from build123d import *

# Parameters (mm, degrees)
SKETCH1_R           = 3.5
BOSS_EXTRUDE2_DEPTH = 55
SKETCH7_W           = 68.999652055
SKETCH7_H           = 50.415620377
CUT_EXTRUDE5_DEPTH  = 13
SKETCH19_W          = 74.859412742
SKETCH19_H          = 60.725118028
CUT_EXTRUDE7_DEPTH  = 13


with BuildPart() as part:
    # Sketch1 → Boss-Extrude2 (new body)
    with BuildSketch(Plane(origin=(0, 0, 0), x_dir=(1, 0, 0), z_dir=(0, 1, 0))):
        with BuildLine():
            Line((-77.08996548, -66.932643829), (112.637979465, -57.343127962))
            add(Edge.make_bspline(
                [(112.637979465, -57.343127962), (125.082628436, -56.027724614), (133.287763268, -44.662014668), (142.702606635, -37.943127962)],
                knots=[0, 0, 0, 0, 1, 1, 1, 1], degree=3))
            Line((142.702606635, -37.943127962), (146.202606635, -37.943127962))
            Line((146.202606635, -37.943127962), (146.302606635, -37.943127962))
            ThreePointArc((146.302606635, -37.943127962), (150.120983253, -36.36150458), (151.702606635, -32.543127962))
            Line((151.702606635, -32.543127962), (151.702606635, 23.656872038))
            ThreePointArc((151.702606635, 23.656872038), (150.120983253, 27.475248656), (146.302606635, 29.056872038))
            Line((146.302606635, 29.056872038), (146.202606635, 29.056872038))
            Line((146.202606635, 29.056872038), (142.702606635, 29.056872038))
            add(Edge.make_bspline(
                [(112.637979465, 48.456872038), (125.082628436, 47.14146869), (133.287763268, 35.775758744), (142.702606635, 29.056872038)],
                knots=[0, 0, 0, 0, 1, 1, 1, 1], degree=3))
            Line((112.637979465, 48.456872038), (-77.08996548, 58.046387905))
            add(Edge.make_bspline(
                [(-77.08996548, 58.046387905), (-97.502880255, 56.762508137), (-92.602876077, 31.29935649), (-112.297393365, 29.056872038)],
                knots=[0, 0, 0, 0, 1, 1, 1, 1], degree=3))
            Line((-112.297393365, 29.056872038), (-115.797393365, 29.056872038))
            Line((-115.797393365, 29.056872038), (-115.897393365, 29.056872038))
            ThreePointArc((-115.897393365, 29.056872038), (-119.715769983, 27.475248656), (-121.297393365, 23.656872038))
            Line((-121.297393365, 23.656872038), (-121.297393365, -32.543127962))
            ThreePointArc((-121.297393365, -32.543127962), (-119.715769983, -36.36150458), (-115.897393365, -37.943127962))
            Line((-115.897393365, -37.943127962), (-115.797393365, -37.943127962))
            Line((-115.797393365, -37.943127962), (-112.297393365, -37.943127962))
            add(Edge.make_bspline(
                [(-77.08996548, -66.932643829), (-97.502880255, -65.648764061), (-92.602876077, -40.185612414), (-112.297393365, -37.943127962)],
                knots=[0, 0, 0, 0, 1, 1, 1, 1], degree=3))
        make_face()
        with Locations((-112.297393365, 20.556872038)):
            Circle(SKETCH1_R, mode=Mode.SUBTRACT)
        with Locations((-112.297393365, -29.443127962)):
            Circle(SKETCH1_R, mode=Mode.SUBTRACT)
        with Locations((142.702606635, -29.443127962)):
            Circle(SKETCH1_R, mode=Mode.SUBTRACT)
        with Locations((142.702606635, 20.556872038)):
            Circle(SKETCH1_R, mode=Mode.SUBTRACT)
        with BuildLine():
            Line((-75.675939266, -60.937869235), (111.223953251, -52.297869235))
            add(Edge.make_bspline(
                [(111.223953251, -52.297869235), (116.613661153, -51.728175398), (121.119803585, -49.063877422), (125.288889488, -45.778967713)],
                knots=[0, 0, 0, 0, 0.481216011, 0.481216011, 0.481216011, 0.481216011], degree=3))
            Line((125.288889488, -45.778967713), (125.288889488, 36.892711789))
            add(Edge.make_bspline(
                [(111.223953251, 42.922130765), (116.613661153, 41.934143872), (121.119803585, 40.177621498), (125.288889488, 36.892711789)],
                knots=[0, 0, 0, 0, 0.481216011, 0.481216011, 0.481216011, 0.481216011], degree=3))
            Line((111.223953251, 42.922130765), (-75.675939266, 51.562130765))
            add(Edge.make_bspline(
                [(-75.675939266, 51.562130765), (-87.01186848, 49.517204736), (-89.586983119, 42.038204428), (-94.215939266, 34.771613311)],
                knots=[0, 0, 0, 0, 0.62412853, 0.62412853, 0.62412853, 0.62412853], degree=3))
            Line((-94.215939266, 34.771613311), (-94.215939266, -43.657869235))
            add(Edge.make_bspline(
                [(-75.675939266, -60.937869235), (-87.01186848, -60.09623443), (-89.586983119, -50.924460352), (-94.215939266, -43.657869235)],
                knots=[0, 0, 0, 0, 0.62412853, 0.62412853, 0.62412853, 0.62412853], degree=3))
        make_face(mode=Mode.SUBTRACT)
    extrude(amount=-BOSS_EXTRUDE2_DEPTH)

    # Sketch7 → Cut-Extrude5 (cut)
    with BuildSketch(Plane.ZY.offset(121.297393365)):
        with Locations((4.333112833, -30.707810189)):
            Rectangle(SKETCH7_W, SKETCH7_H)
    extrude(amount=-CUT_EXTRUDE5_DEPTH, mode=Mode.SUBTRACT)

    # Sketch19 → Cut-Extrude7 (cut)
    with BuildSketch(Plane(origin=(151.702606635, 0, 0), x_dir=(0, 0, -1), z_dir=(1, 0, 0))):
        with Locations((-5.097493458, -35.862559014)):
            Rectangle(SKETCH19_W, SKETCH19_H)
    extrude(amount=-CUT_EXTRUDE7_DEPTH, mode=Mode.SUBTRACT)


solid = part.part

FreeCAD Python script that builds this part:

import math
import FreeCAD as App
import Part
import Sketcher

V = App.Vector


def add_polygon(sketch, points):
    """Adds a closed chain of lines whose ends are joined by coincident constraints."""
    first, n = sketch.GeometryCount, len(points)
    for a, b in zip(points, points[1:] + points[:1]):
        sketch.addGeometry(Part.LineSegment(App.Vector(*a, 0), App.Vector(*b, 0)), False)
    for i in range(n):
        sketch.addConstraint(Sketcher.Constraint("Coincident", first + i, 2, first + (i + 1) % n, 1))

doc = App.newDocument("Part")
body = doc.addObject("PartDesign::Body", "Body")

# Sketch on XZ plane
sketch1 = doc.addObject("Sketcher::SketchObject", "Sketch")
body.addObject(sketch1)
sketch1.AttachmentSupport = (doc.XZ_Plane, [""])
sketch1.MapMode = "FlatFace"
sketch1.addGeometry([
    Part.LineSegment(V(-77.089965, 66.932644, 0), V(112.637979, 57.343128, 0)),  # 0
    Part.BSplineCurve([V(112.637979, 57.343128, 0), V(125.082628, 56.027725, 0), V(133.287763, 44.662015, 0), V(142.702607, 37.943128, 0)], [4, 4], [0, 1], False, 3, [1, 1, 1, 1], False),  # 1
    Part.LineSegment(V(142.702607, 37.943128, 0), V(146.302607, 37.943128, 0)),  # 2
    Part.ArcOfCircle(Part.Circle(V(146.302607, 32.543128, 0), V(0, 0, 1), 5.4), math.radians(0), math.radians(90)),  # 3
    Part.LineSegment(V(151.702607, 32.543128, 0), V(151.702607, -23.656872, 0)),  # 4
    Part.ArcOfCircle(Part.Circle(V(146.302607, -23.656872, 0), V(0, 0, 1), 5.4), math.radians(-90), math.radians(0)),  # 5
    Part.LineSegment(V(146.302607, -29.056872, 0), V(142.702607, -29.056872, 0)),  # 6
    Part.BSplineCurve([V(112.637979, -48.456872, 0), V(125.082628, -47.141469, 0), V(133.287763, -35.775759, 0), V(142.702607, -29.056872, 0)], [4, 4], [0, 1], False, 3, [1, 1, 1, 1], False),  # 7
    Part.LineSegment(V(112.637979, -48.456872, 0), V(-77.089965, -58.046388, 0)),  # 8
    Part.BSplineCurve([V(-77.089965, -58.046388, 0), V(-97.50288, -56.762508, 0), V(-92.602876, -31.299356, 0), V(-112.297393, -29.056872, 0)], [4, 4], [0, 1], False, 3, [1, 1, 1, 1], False),  # 9
    Part.LineSegment(V(-112.297393, -29.056872, 0), V(-115.897393, -29.056872, 0)),  # 10
    Part.ArcOfCircle(Part.Circle(V(-115.897393, -23.656872, 0), V(0, 0, 1), 5.4), math.radians(-180), math.radians(-90)),  # 11
    Part.LineSegment(V(-121.297393, -23.656872, 0), V(-121.297393, 32.543128, 0)),  # 12
    Part.ArcOfCircle(Part.Circle(V(-115.897393, 32.543128, 0), V(0, 0, 1), 5.4), math.radians(90), math.radians(180)),  # 13
    Part.LineSegment(V(-115.897393, 37.943128, 0), V(-112.297393, 37.943128, 0)),  # 14
    Part.BSplineCurve([V(-77.089965, 66.932644, 0), V(-97.50288, 65.648764, 0), V(-92.602876, 40.185612, 0), V(-112.297393, 37.943128, 0)], [4, 4], [0, 1], False, 3, [1, 1, 1, 1], False),  # 15
    Part.Circle(V(-112.297393, 29.443128, 0), V(0, 0, 1), 3.5),  # 16
    Part.Circle(V(142.702607, 29.443128, 0), V(0, 0, 1), 3.5),  # 17
    Part.Circle(V(-112.297393, -20.556872, 0), V(0, 0, 1), 3.5),  # 18
    Part.LineSegment(V(111.223953, 52.297869, 0), V(-75.675939, 60.937869, 0)),  # 19
    Part.BSplineCurve([V(-75.675939, 60.937869, 0), V(-87.011868, 60.096234, 0), V(-89.586983, 50.92446, 0), V(-94.215939, 43.657869, 0)], [4, 4], [0, 0.62412853], False, 3, [1, 1, 1, 1], False),  # 20
    Part.LineSegment(V(-94.215939, 43.657869, 0), V(-94.215939, -34.771613, 0)),  # 21
    Part.BSplineCurve([V(-75.675939, -51.562131, 0), V(-87.011868, -49.517205, 0), V(-89.586983, -42.038204, 0), V(-94.215939, -34.771613, 0)], [4, 4], [0, 0.62412853], False, 3, [1, 1, 1, 1], False),  # 22
    Part.LineSegment(V(-75.675939, -51.562131, 0), V(111.223953, -42.922131, 0)),  # 23
    Part.BSplineCurve([V(111.223953, -42.922131, 0), V(116.613661, -41.934144, 0), V(121.119804, -40.177621, 0), V(125.288889, -36.892712, 0)], [4, 4], [0, 0.481216011], False, 3, [1, 1, 1, 1], False),  # 24
    Part.LineSegment(V(125.288889, -36.892712, 0), V(125.288889, 45.778968, 0)),  # 25
    Part.BSplineCurve([V(111.223953, 52.297869, 0), V(116.613661, 51.728175, 0), V(121.119804, 49.063877, 0), V(125.288889, 45.778968, 0)], [4, 4], [0, 0.481216011], False, 3, [1, 1, 1, 1], False),  # 26
    Part.Circle(V(142.702607, -20.556872, 0), V(0, 0, 1), 3.5),  # 27
], False)
sketch1.addConstraint([
    Sketcher.Constraint("Block", 1),
    Sketcher.Constraint("Block", 7),
    Sketcher.Constraint("Block", 9),
    Sketcher.Constraint("Block", 15),
    Sketcher.Constraint("Block", 20),
    Sketcher.Constraint("Block", 22),
    Sketcher.Constraint("Block", 24),
    Sketcher.Constraint("Block", 26),
    Sketcher.Constraint("Coincident", 0, 2, 1, 1),
    Sketcher.Constraint("Coincident", 1, 2, 2, 1),
    Sketcher.Constraint("Tangent", 2, 2, 3, 2),
    Sketcher.Constraint("Tangent", 3, 1, 4, 1),
    Sketcher.Constraint("Tangent", 4, 2, 5, 2),
    Sketcher.Constraint("Tangent", 5, 1, 6, 1),
    Sketcher.Constraint("Coincident", 6, 2, 7, 2),
    Sketcher.Constraint("Coincident", 7, 1, 8, 1),
    Sketcher.Constraint("Coincident", 8, 2, 9, 1),
    Sketcher.Constraint("Coincident", 9, 2, 10, 1),
    Sketcher.Constraint("Tangent", 10, 2, 11, 2),
    Sketcher.Constraint("Tangent", 11, 1, 12, 1),
    Sketcher.Constraint("Tangent", 12, 2, 13, 2),
    Sketcher.Constraint("Tangent", 13, 1, 14, 1),
    Sketcher.Constraint("Coincident", 14, 2, 15, 2),
    Sketcher.Constraint("Coincident", 15, 1, 0, 1),
    Sketcher.Constraint("Coincident", 19, 2, 20, 1),
    Sketcher.Constraint("Coincident", 20, 2, 21, 1),
    Sketcher.Constraint("Coincident", 21, 2, 22, 2),
    Sketcher.Constraint("Coincident", 22, 1, 23, 1),
    Sketcher.Constraint("Coincident", 23, 2, 24, 1),
    Sketcher.Constraint("Coincident", 24, 2, 25, 1),
    Sketcher.Constraint("Coincident", 25, 2, 26, 2),
    Sketcher.Constraint("Coincident", 26, 1, 19, 1),
    Sketcher.Constraint("Horizontal", 2),
    Sketcher.Constraint("Vertical", 4),
    Sketcher.Constraint("Horizontal", 6),
    Sketcher.Constraint("Horizontal", 10),
    Sketcher.Constraint("Vertical", 12),
    Sketcher.Constraint("Horizontal", 14),
    Sketcher.Constraint("Equal", 3, 5),
    Sketcher.Constraint("Equal", 5, 11),
    Sketcher.Constraint("Equal", 11, 13),
    Sketcher.Constraint("Equal", 16, 17),
    Sketcher.Constraint("Equal", 17, 18),
    Sketcher.Constraint("Equal", 18, 27),
    Sketcher.Constraint("Horizontal", 16, 3, 17, 3),
    Sketcher.Constraint("Horizontal", 18, 3, 27, 3),
    Sketcher.Constraint("Vertical", 16, 3, 18, 3),
    Sketcher.Constraint("Vertical", 17, 3, 27, 3),
    Sketcher.Constraint("Vertical", 27, 3, 6, 2),
    Sketcher.Constraint("Vertical", 18, 3, 14, 2),
    Sketcher.Constraint("Equal", 6, 10),
    Sketcher.Constraint("Diameter", 16, 7.0),
    Sketcher.Constraint("Radius", 3, 5.4),
    Sketcher.Constraint("DistanceX", 2, 1, 2, 2, 3.6),
    Sketcher.Constraint("DistanceY", 18, 3, 16, 3, 50.0),
    Sketcher.Constraint("DistanceY", 16, 3, 13, 3, 3.1),
])
pad1 = doc.addObject("PartDesign::Pad", "Pad")
body.addObject(pad1)
pad1.Profile = sketch1
pad1.Length = 55

# Sketch on YZ plane
sketch2 = doc.addObject("Sketcher::SketchObject", "Sketch001")
body.addObject(sketch2)
sketch2.AttachmentSupport = (doc.YZ_Plane, [""])
sketch2.MapMode = "FlatFace"
sketch2.AttachmentOffset = App.Placement(V(0, 0, -121.297393), App.Rotation())
add_polygon(sketch2, [(-6, -30), (-56, -30), (-56, 39), (-6, 39)])  # lines 0-3
sketch2.addConstraint([
    Sketcher.Constraint("Horizontal", 0),
    Sketcher.Constraint("Vertical", 1),
    Sketcher.Constraint("Horizontal", 2),
    Sketcher.Constraint("Vertical", 3),
    Sketcher.Constraint("DistanceX", 2, 2, -1, 1, 5.5),
    Sketcher.Constraint("DistanceX", 0, 2, 0, 1, 50.41562),
    Sketcher.Constraint("DistanceY", 1, 1, 1, 2, 68.999652),
    Sketcher.Constraint("DistanceY", -1, 1, 1, 2, 38.832939),
])
pocket1 = doc.addObject("PartDesign::Pocket", "Pocket")
body.addObject(pocket1)
pocket1.Profile = sketch2
pocket1.Length = 13
pocket1.Reversed = True

# Sketch on YZ plane
sketch3 = doc.addObject("Sketcher::SketchObject", "Sketch002")
body.addObject(sketch3)
sketch3.AttachmentSupport = (doc.YZ_Plane, [""])
sketch3.MapMode = "FlatFace"
sketch3.AttachmentOffset = App.Placement(V(0, 0, 151.702607), App.Rotation())
add_polygon(sketch3, [(-6, 43), (-66, 43), (-66, -32), (-6, -32)])  # lines 0-3
sketch3.addConstraint([
    Sketcher.Constraint("Horizontal", 0),
    Sketcher.Constraint("Vertical", 1),
    Sketcher.Constraint("Horizontal", 2),
    Sketcher.Constraint("Vertical", 3),
    Sketcher.Constraint("DistanceX", 2, 2, -1, 1, 5.5),
    Sketcher.Constraint("DistanceX", 0, 2, 0, 1, 60.725118),
    Sketcher.Constraint("DistanceY", -1, 1, 0, 2, 42.5272),
    Sketcher.Constraint("DistanceY", 1, 2, 1, 1, 74.859413),
])
pocket2 = doc.addObject("PartDesign::Pocket", "Pocket001")
body.addObject(pocket2)
pocket2.Profile = sketch3
pocket2.Length = 13

doc.recompute()
